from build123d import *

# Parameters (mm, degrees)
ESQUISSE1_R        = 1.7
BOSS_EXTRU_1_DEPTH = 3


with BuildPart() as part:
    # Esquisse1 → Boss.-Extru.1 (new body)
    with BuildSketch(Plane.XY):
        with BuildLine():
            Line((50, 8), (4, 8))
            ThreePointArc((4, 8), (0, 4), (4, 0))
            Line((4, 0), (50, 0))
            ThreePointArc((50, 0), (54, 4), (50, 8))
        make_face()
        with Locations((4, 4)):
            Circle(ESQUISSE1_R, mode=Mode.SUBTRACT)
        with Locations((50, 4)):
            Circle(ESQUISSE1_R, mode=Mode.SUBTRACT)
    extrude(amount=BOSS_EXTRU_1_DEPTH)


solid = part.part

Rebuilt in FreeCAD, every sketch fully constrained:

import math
import FreeCAD as App
import Part
import Sketcher
from FreeCAD import Vector

doc = App.newDocument("Part")
params = doc.addObject("Spreadsheet::Sheet", "Params")
for row, (alias, value) in enumerate([
    ("sketch1_radius", "4 mm"),
    ("sketch1_diameter", "3.4 mm"),
    ("sketch1_width", "46 mm"),
    ("pad1_length", "3 mm"),
], start=1):
    params.set(f"A{row}", alias)
    params.set(f"B{row}", "=" + value)
    params.setAlias(f"B{row}", alias)

body = doc.addObject("PartDesign::Body", "Body")

# Sketch on XY plane
sketch1 = body.newObject("Sketcher::SketchObject", "Sketch")
sketch1.AttachmentSupport = (doc.getObject("XY_Plane"), [""])
sketch1.MapMode = "FlatFace"
sketch1.addGeometry(Part.LineSegment(Vector(50, 8, 0), Vector(4, 8, 0)), False)
sketch1.addGeometry(Part.ArcOfCircle(Part.Circle(Vector(4, 4, 0), Vector(0, 0, 1), 4), math.radians(90), math.radians(270)), False)
sketch1.addGeometry(Part.LineSegment(Vector(4, 0, 0), Vector(50, 0, 0)), False)
sketch1.addGeometry(Part.ArcOfCircle(Part.Circle(Vector(50, 4, 0), Vector(0, 0, 1), 4), math.radians(-90), math.radians(90)), False)
sketch1.addGeometry(Part.Circle(Vector(4, 4, 0), Vector(0, 0, 1), 1.7), False)
sketch1.addGeometry(Part.Circle(Vector(50, 4, 0), Vector(0, 0, 1), 1.7), False)
sketch1.addConstraint(Sketcher.Constraint("Tangent", 0, 2, 1, 1))
sketch1.addConstraint(Sketcher.Constraint("Tangent", 1, 2, 2, 1))
sketch1.addConstraint(Sketcher.Constraint("Tangent", 2, 2, 3, 1))
sketch1.addConstraint(Sketcher.Constraint("Tangent", 3, 2, 0, 1))
sketch1.addConstraint(Sketcher.Constraint("Horizontal", 0))
sketch1.addConstraint(Sketcher.Constraint("Horizontal", 2))
sketch1.addConstraint(Sketcher.Constraint("Coincident", 4, 3, 1, 3))
sketch1.addConstraint(Sketcher.Constraint("Coincident", 5, 3, 3, 3))
sketch1.addConstraint(Sketcher.Constraint("Equal", 4, 5))
sketch1.addConstraint(Sketcher.Constraint("PointOnObject", 1, 2, -1))
sketch1.addConstraint(Sketcher.Constraint("Radius", 1, 4.0))
sketch1.addConstraint(Sketcher.Constraint("Diameter", 4, 3.4))
sketch1.addConstraint(Sketcher.Constraint("DistanceX", 0, 2, 0, 1, 46.0))
sketch1.addConstraint(Sketcher.Constraint("DistanceX", -1, 1, 1, 3, 4.0))
sketch1.setExpression("Constraints[10]", "Params.sketch1_radius")
sketch1.setExpression("Constraints[11]", "Params.sketch1_diameter")
sketch1.setExpression("Constraints[12]", "Params.sketch1_width")
pad1 = body.newObject("PartDesign::Pad", "Pad")
pad1.Profile = sketch1
pad1.setExpression("Length", "Params.pad1_length")

doc.recompute()
